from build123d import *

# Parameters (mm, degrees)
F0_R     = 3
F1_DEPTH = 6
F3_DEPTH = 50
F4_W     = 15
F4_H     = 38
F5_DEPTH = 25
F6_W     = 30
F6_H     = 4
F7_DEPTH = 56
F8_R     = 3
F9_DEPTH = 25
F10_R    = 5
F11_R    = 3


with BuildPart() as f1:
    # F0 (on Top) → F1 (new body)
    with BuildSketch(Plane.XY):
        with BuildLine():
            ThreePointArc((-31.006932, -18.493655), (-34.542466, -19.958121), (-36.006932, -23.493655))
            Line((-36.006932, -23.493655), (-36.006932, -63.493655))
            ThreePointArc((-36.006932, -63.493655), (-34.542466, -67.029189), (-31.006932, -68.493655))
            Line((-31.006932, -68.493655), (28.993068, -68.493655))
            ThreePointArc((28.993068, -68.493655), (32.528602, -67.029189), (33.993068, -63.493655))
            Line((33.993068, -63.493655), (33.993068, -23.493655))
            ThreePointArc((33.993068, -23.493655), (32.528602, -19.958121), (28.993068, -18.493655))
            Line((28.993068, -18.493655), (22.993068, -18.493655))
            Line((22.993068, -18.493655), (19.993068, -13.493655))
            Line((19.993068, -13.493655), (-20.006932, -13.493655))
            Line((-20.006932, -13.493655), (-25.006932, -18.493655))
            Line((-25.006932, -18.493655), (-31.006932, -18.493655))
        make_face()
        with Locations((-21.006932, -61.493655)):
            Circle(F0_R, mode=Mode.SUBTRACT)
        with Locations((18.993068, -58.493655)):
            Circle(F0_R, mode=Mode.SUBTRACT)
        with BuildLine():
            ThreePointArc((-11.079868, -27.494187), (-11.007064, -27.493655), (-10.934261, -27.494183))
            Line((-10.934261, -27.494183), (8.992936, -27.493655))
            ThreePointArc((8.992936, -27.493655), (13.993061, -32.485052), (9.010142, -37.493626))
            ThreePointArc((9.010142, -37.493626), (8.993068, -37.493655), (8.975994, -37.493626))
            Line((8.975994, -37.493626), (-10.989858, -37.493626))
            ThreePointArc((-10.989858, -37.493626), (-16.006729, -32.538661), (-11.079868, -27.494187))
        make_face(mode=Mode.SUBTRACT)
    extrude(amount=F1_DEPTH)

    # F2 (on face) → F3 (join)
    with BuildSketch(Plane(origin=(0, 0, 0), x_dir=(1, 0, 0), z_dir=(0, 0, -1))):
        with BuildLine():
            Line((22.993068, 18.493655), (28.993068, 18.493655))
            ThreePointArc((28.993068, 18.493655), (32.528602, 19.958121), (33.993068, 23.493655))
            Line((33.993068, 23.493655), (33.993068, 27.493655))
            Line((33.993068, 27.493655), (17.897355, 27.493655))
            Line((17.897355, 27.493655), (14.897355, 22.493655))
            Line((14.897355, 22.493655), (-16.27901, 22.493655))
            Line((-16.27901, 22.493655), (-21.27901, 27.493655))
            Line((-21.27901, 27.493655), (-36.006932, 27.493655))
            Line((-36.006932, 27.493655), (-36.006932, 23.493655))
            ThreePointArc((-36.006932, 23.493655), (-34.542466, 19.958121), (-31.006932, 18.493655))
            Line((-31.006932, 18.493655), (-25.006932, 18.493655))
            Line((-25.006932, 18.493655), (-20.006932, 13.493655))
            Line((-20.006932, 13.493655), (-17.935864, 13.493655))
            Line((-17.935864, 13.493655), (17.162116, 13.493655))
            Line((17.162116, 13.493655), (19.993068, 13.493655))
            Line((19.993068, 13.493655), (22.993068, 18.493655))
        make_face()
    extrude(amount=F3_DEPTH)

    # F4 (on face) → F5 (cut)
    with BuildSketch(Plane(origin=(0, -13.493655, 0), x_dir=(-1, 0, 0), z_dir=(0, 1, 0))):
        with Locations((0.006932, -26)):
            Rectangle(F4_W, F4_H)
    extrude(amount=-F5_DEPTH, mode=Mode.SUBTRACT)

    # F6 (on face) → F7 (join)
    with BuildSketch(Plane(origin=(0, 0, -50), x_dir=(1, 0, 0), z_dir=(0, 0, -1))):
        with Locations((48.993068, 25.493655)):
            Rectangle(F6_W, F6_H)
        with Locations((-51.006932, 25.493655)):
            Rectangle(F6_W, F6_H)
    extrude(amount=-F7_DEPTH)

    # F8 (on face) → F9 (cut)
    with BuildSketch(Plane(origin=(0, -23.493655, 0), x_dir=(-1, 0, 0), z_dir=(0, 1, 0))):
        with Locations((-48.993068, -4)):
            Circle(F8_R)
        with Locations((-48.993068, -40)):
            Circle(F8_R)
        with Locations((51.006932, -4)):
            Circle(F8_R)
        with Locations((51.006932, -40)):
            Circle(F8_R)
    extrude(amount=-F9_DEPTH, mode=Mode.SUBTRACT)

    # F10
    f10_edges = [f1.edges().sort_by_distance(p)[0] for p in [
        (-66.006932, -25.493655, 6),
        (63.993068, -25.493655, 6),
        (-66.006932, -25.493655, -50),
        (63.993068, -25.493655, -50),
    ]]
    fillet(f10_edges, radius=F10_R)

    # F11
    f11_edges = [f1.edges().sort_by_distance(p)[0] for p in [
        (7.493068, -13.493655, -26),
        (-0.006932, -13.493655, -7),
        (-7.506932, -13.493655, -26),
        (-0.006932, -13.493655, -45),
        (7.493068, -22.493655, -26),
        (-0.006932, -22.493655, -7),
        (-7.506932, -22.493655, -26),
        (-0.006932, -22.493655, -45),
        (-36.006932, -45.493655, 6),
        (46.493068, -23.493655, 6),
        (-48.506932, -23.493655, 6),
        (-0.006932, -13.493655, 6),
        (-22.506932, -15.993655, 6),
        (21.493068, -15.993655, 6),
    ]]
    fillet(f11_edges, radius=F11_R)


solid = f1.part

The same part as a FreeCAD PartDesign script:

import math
import FreeCAD as App
import Part
import Sketcher
from FreeCAD import Vector
Q = App.Units.Quantity


def edges_at(feature, points):
    """Names of the edges that pass closest to the given points."""
    edges = feature.Shape.Edges
    near = lambda p: min(range(len(edges)), key=lambda i: edges[i].distToShape(Part.Vertex(*p))[0])
    return sorted({f"Edge{near(p) + 1}" for p in points})

doc = App.newDocument("Part")
body = doc.addObject("PartDesign::Body", "Body")

# Sketch on XY plane
sketch1 = doc.addObject("Sketcher::SketchObject", "Sketch")
body.addObject(sketch1)
sketch1.AttachmentSupport = (doc.XY_Plane, [""])
sketch1.MapMode = "FlatFace"
sketch1.addGeometry(Part.ArcOfCircle(Part.Circle(Vector(-31.006932, -23.493655, 0), Vector(0, 0, 1), 5), math.radians(89.999996), math.radians(180.000004)), False)
sketch1.addGeometry(Part.LineSegment(Vector(-36.006932, -23.493655, 0), Vector(-36.006932, -63.493655, 0)), False)
sketch1.addGeometry(Part.ArcOfCircle(Part.Circle(Vector(-31.006932, -63.493655, 0), Vector(0, 0, 1), 5), math.radians(179.999996), math.radians(270.000004)), False)
sketch1.addGeometry(Part.LineSegment(Vector(-31.006932, -68.493655, 0), Vector(28.993068, -68.493655, 0)), False)
sketch1.addGeometry(Part.ArcOfCircle(Part.Circle(Vector(28.993068, -63.493655, 0), Vector(0, 0, 1), 5), math.radians(-90.000004), math.radians(0.000004)), False)
sketch1.addGeometry(Part.LineSegment(Vector(33.993068, -63.493655, 0), Vector(33.993068, -23.493655, 0)), False)
sketch1.addGeometry(Part.ArcOfCircle(Part.Circle(Vector(28.993068, -23.493655, 0), Vector(0, 0, 1), 5), math.radians(-0.000004), math.radians(90.000004)), False)
sketch1.addGeometry(Part.LineSegment(Vector(28.993068, -18.493655, 0), Vector(22.993068, -18.493655, 0)), False)
sketch1.addGeometry(Part.LineSegment(Vector(22.993068, -18.493655, 0), Vector(19.993068, -13.493655, 0)), False)
sketch1.addGeometry(Part.LineSegment(Vector(19.993068, -13.493655, 0), Vector(-20.006932, -13.493655, 0)), False)
sketch1.addGeometry(Part.LineSegment(Vector(-20.006932, -13.493655, 0), Vector(-25.006932, -18.493655, 0)), False)
sketch1.addGeometry(Part.LineSegment(Vector(-25.006932, -18.493655, 0), Vector(-31.006932, -18.493655, 0)), False)
sketch1.addGeometry(Part.Circle(Vector(-21.006932, -61.493655, 0), Vector(0, 0, 1), 3), False)
sketch1.addGeometry(Part.Circle(Vector(18.993068, -58.493655, 0), Vector(0, 0, 1), 3), False)
sketch1.addGeometry(Part.ArcOfCircle(Part.Circle(Vector(-11.006931, -32.493655, 0), Vector(0, 0, 1), 5), math.radians(90.835821), math.radians(270.195648)), False)
sketch1.addGeometry(Part.ArcOfCircle(Part.Circle(Vector(-11.006927, -32.49425, 0), Vector(0, 0, 1), 5.000595), math.radians(89.167377), math.radians(90.835771)), False)
sketch1.addGeometry(Part.LineSegment(Vector(-10.934261, -27.494183, 0), Vector(8.992936, -27.493655, 0)), False)
sketch1.addGeometry(Part.ArcOfCircle(Part.Circle(Vector(8.993068, -32.493655, 0), Vector(0, 0, 1), 5), math.radians(-89.80435), math.radians(90.001516)), False)
sketch1.addGeometry(Part.ArcOfCircle(Part.Circle(Vector(8.993068, -32.467408, 0), Vector(0, 0, 1), 5.026247), math.radians(-90.194632), math.radians(-89.805368)), False)
sketch1.addGeometry(Part.LineSegment(Vector(8.975994, -37.493626, 0), Vector(-10.989858, -37.493626, 0)), False)
sketch1.addConstraint(Sketcher.Constraint("Tangent", 0, 2, 1, 1))
sketch1.addConstraint(Sketcher.Constraint("Tangent", 1, 2, 2, 1))
sketch1.addConstraint(Sketcher.Constraint("Tangent", 2, 2, 3, 1))
sketch1.addConstraint(Sketcher.Constraint("Tangent", 3, 2, 4, 1))
sketch1.addConstraint(Sketcher.Constraint("Tangent", 4, 2, 5, 1))
sketch1.addConstraint(Sketcher.Constraint("Tangent", 5, 2, 6, 1))
sketch1.addConstraint(Sketcher.Constraint("Tangent", 6, 2, 7, 1))
sketch1.addConstraint(Sketcher.Constraint("Coincident", 7, 2, 8, 1))
sketch1.addConstraint(Sketcher.Constraint("Coincident", 8, 2, 9, 1))
sketch1.addConstraint(Sketcher.Constraint("Coincident", 9, 2, 10, 1))
sketch1.addConstraint(Sketcher.Constraint("Coincident", 10, 2, 11, 1))
sketch1.addConstraint(Sketcher.Constraint("Tangent", 11, 2, 0, 1))
sketch1.addConstraint(Sketcher.Constraint("Tangent", 14, 1, 15, 2))
sketch1.addConstraint(Sketcher.Constraint("Coincident", 15, 1, 16, 1))
sketch1.addConstraint(Sketcher.Constraint("Tangent", 16, 2, 17, 2))
sketch1.addConstraint(Sketcher.Constraint("Coincident", 17, 1, 18, 2))
sketch1.addConstraint(Sketcher.Constraint("Coincident", 18, 1, 19, 1))
sketch1.addConstraint(Sketcher.Constraint("Coincident", 19, 2, 14, 2))
sketch1.addConstraint(Sketcher.Constraint("Vertical", 1))
sketch1.addConstraint(Sketcher.Constraint("Horizontal", 3))
sketch1.addConstraint(Sketcher.Constraint("Vertical", 5))
sketch1.addConstraint(Sketcher.Constraint("Horizontal", 7))
sketch1.addConstraint(Sketcher.Constraint("Horizontal", 9))
sketch1.addConstraint(Sketcher.Constraint("Horizontal", 11))
sketch1.addConstraint(Sketcher.Constraint("Horizontal", 19))
sketch1.addConstraint(Sketcher.Constraint("Equal", 0, 2))
sketch1.addConstraint(Sketcher.Constraint("Equal", 2, 4))
sketch1.addConstraint(Sketcher.Constraint("Equal", 4, 6))
sketch1.addConstraint(Sketcher.Constraint("Equal", 12, 13))
sketch1.addConstraint(Sketcher.Constraint("Equal", 6, 14))
sketch1.addConstraint(Sketcher.Constraint("Equal", 14, 17))
sketch1.addConstraint(Sketcher.Constraint("Horizontal", 0, 3, 6, 3))
sketch1.addConstraint(Sketcher.Constraint("Horizontal", 14, 3, 17, 3))
sketch1.addConstraint(Sketcher.Constraint("Horizontal", 17, 1, 18, 1))
sketch1.addConstraint(Sketcher.Constraint("Vertical", 17, 3, 18, 3))
sketch1.addConstraint(Sketcher.Constraint("Equal", 7, 11))
sketch1.addConstraint(Sketcher.Constraint("Equal", 9, 1))
sketch1.addConstraint(Sketcher.Constraint("Diameter", 12, 6.0))
sketch1.addConstraint(Sketcher.Constraint("Radius", 0, 5.0))
sketch1.addConstraint(Sketcher.Constraint("DistanceX", 3, 1, 3, 2, 60.0))
sketch1.addConstraint(Sketcher.Constraint("DistanceX", 7, 2, 7, 1, 6.0))
sketch1.addConstraint(Sketcher.Constraint("DistanceX", 9, 2, 9, 1, 40.0))
sketch1.addConstraint(Sketcher.Constraint("Angle", 10, Q("-135 deg")))
sketch1.addConstraint(Sketcher.Constraint("DistanceX", 2, 3, 12, 3, 10.0))
sketch1.addConstraint(Sketcher.Constraint("DistanceY", 2, 3, 12, 3, 2.0))
sketch1.addConstraint(Sketcher.Constraint("DistanceX", 13, 3, 4, 3, 10.0))
sketch1.addConstraint(Sketcher.Constraint("DistanceY", 4, 3, 13, 3, 5.0))
sketch1.addConstraint(Sketcher.Constraint("DistanceX", 0, 3, 14, 3, 20.000001))
sketch1.addConstraint(Sketcher.Constraint("DistanceY", 14, 3, 0, 3, 9.0))
sketch1.addConstraint(Sketcher.Constraint("DistanceX", 14, 3, 17, 3, 20.0))
sketch1.addConstraint(Sketcher.Constraint("DistanceX", 8, 2, 7, 2, 3.0))
sketch1.addConstraint(Sketcher.Constraint("Radius", 15, 5.000595))
sketch1.addConstraint(Sketcher.Constraint("Radius", 18, 5.026247))
sketch1.addConstraint(Sketcher.Constraint("DistanceX", 19, 2, 19, 1, 19.965852))
sketch1.addConstraint(Sketcher.Constraint("DistanceX", -1, 1, 4, 3, 28.993068))
sketch1.addConstraint(Sketcher.Constraint("DistanceY", 15, 3, -1, 1, 32.49425))
sketch1.addConstraint(Sketcher.Constraint("DistanceX", 14, 1, -1, 1, 11.079868))
sketch1.addConstraint(Sketcher.Constraint("DistanceX", 15, 1, -1, 1, 10.934261))
pad1 = doc.addObject("PartDesign::Pad", "Pad")
body.addObject(pad1)
pad1.Profile = sketch1
pad1.Length = 6

# Sketch on XY plane
sketch2 = doc.addObject("Sketcher::SketchObject", "Sketch001")
body.addObject(sketch2)
sketch2.AttachmentSupport = (doc.XY_Plane, [""])
sketch2.MapMode = "FlatFace"
sketch2.addGeometry(Part.LineSegment(Vector(23, -18.5, 0), Vector(29, -18.5, 0)), False)
sketch2.addGeometry(Part.ArcOfCircle(Part.Circle(Vector(29, -23.5, 0), Vector(0, 0, 1), 5), math.radians(0), math.radians(90)), False)
sketch2.addGeometry(Part.LineSegment(Vector(34, -23.5, 0), Vector(34, -27.5, 0)), False)
sketch2.addGeometry(Part.LineSegment(Vector(34, -27.5, 0), Vector(17.9, -27.5, 0)), False)
sketch2.addGeometry(Part.LineSegment(Vector(17.9, -27.5, 0), Vector(14.9, -22.5, 0)), False)
sketch2.addGeometry(Part.LineSegment(Vector(14.9, -22.5, 0), Vector(-16.3, -22.5, 0)), False)
sketch2.addGeometry(Part.LineSegment(Vector(-16.3, -22.5, 0), Vector(-21.3, -27.5, 0)), False)
sketch2.addGeometry(Part.LineSegment(Vector(-21.3, -27.5, 0), Vector(-36, -27.5, 0)), False)
sketch2.addGeometry(Part.LineSegment(Vector(-36, -27.5, 0), Vector(-36, -23.5, 0)), False)
sketch2.addGeometry(Part.ArcOfCircle(Part.Circle(Vector(-31, -23.5, 0), Vector(0, 0, 1), 5), math.radians(90), math.radians(180)), False)
sketch2.addGeometry(Part.LineSegment(Vector(-31, -18.5, 0), Vector(-25, -18.5, 0)), False)
sketch2.addGeometry(Part.LineSegment(Vector(-25, -18.5, 0), Vector(-20, -13.5, 0)), False)
sketch2.addGeometry(Part.LineSegment(Vector(-20, -13.5, 0), Vector(20, -13.5, 0)), False)
sketch2.addGeometry(Part.LineSegment(Vector(20, -13.5, 0), Vector(23, -18.5, 0)), False)
sketch2.addConstraint(Sketcher.Constraint("Tangent", 0, 2, 1, 2))
sketch2.addConstraint(Sketcher.Constraint("Tangent", 1, 1, 2, 1))
sketch2.addConstraint(Sketcher.Constraint("Coincident", 2, 2, 3, 1))
sketch2.addConstraint(Sketcher.Constraint("Coincident", 3, 2, 4, 1))
sketch2.addConstraint(Sketcher.Constraint("Coincident", 4, 2, 5, 1))
sketch2.addConstraint(Sketcher.Constraint("Coincident", 5, 2, 6, 1))
sketch2.addConstraint(Sketcher.Constraint("Coincident", 6, 2, 7, 1))
sketch2.addConstraint(Sketcher.Constraint("Coincident", 7, 2, 8, 1))
sketch2.addConstraint(Sketcher.Constraint("Tangent", 8, 2, 9, 2))
sketch2.addConstraint(Sketcher.Constraint("Tangent", 9, 1, 10, 1))
sketch2.addConstraint(Sketcher.Constraint("Coincident", 10, 2, 11, 1))
sketch2.addConstraint(Sketcher.Constraint("Coincident", 11, 2, 12, 1))
sketch2.addConstraint(Sketcher.Constraint("Coincident", 12, 2, 13, 1))
sketch2.addConstraint(Sketcher.Constraint("Coincident", 13, 2, 0, 1))
sketch2.addConstraint(Sketcher.Constraint("Horizontal", 0))
sketch2.addConstraint(Sketcher.Constraint("Vertical", 2))
sketch2.addConstraint(Sketcher.Constraint("Horizontal", 3))
sketch2.addConstraint(Sketcher.Constraint("Horizontal", 5))
sketch2.addConstraint(Sketcher.Constraint("Horizontal", 7))
sketch2.addConstraint(Sketcher.Constraint("Vertical", 8))
sketch2.addConstraint(Sketcher.Constraint("Horizontal", 10))
sketch2.addConstraint(Sketcher.Constraint("Horizontal", 12))
sketch2.addConstraint(Sketcher.Constraint("Equal", 1, 9))
sketch2.addConstraint(Sketcher.Constraint("Parallel", 6, 11))
sketch2.addConstraint(Sketcher.Constraint("Parallel", 4, 13))
sketch2.addConstraint(Sketcher.Constraint("Horizontal", 1, 3, 9, 3))
sketch2.addConstraint(Sketcher.Constraint("Horizontal", 3, 2, 6, 2))
sketch2.addConstraint(Sketcher.Constraint("Equal", 0, 10))
sketch2.addConstraint(Sketcher.Constraint("Equal", 6, 11))
sketch2.addConstraint(Sketcher.Constraint("Radius", 1, 5.0))
sketch2.addConstraint(Sketcher.Constraint("DistanceX", 0, 1, 0, 2, 6.0))
sketch2.addConstraint(Sketcher.Constraint("DistanceX", 12, 1, 12, 2, 40.0))
sketch2.addConstraint(Sketcher.Constraint("DistanceY", 2, 2, 2, 1, 4.0))
sketch2.addConstraint(Sketcher.Constraint("Angle", 6, Q("-135 deg")))
sketch2.addConstraint(Sketcher.Constraint("DistanceX", 9, 3, 1, 3, 60.000001))
sketch2.addConstraint(Sketcher.Constraint("DistanceX", 4, 2, 3, 2, 3.0))
sketch2.addConstraint(Sketcher.Constraint("DistanceX", 3, 2, 3, 1, 16.095713))
sketch2.addConstraint(Sketcher.Constraint("DistanceX", 5, 2, 5, 1, 31.176365))
sketch2.addConstraint(Sketcher.Constraint("DistanceX", -1, 1, 1, 3, 28.993068))
sketch2.addConstraint(Sketcher.Constraint("DistanceY", 1, 3, -1, 1, 23.493655))
pad2 = doc.addObject("PartDesign::Pad", "Pad001")
body.addObject(pad2)
pad2.Profile = sketch2
pad2.Length = 50
pad2.Reversed = True

# Sketch on XZ plane
sketch3 = doc.addObject("Sketcher::SketchObject", "Sketch002")
body.addObject(sketch3)
sketch3.AttachmentSupport = (doc.XZ_Plane, [""])
sketch3.MapMode = "FlatFace"
sketch3.AttachmentOffset = App.Placement(Vector(0, 0, 13.493655), App.Rotation())
sketch3.addGeometry(Part.LineSegment(Vector(7, -7, 0), Vector(7, -45, 0)), False)
sketch3.addGeometry(Part.LineSegment(Vector(7, -45, 0), Vector(-8, -45, 0)), False)
sketch3.addGeometry(Part.LineSegment(Vector(-8, -45, 0), Vector(-8, -7, 0)), False)
sketch3.addGeometry(Part.LineSegment(Vector(-8, -7, 0), Vector(7, -7, 0)), False)
sketch3.addConstraint(Sketcher.Constraint("Coincident", 0, 2, 1, 1))
sketch3.addConstraint(Sketcher.Constraint("Coincident", 1, 2, 2, 1))
sketch3.addConstraint(Sketcher.Constraint("Coincident", 2, 2, 3, 1))
sketch3.addConstraint(Sketcher.Constraint("Coincident", 3, 2, 0, 1))
sketch3.addConstraint(Sketcher.Constraint("Vertical", 0))
sketch3.addConstraint(Sketcher.Constraint("Horizontal", 1))
sketch3.addConstraint(Sketcher.Constraint("Vertical", 2))
sketch3.addConstraint(Sketcher.Constraint("Horizontal", 3))
sketch3.addConstraint(Sketcher.Constraint("DistanceX", 1, 2, 1, 1, 15.0))
sketch3.addConstraint(Sketcher.Constraint("DistanceY", 0, 2, 0, 1, 38.0))
sketch3.addConstraint(Sketcher.Constraint("DistanceY", 0, 2, -1, 1, 45.0))
sketch3.addConstraint(Sketcher.Constraint("DistanceX", -1, 1, 0, 2, 7.493068))
pocket1 = doc.addObject("PartDesign::Pocket", "Pocket")
body.addObject(pocket1)
pocket1.Profile = sketch3
pocket1.Length = 25
pocket1.Reversed = True

# Sketch on XY plane
sketch4 = doc.addObject("Sketcher::SketchObject", "Sketch003")
body.addObject(sketch4)
sketch4.AttachmentSupport = (doc.XY_Plane, [""])
sketch4.MapMode = "FlatFace"
sketch4.AttachmentOffset = App.Placement(Vector(0, 0, -50), App.Rotation())
sketch4.addGeometry(Part.LineSegment(Vector(34, -27.5, 0), Vector(34, -23.5, 0)), False)
sketch4.addGeometry(Part.LineSegment(Vector(34, -23.5, 0), Vector(64, -23.5, 0)), False)
sketch4.addGeometry(Part.LineSegment(Vector(64, -23.5, 0), Vector(64, -27.5, 0)), False)
sketch4.addGeometry(Part.LineSegment(Vector(64, -27.5, 0), Vector(34, -27.5, 0)), False)
sketch4.addGeometry(Part.LineSegment(Vector(-66, -27.5, 0), Vector(-66, -23.5, 0)), False)
sketch4.addGeometry(Part.LineSegment(Vector(-66, -23.5, 0), Vector(-36, -23.5, 0)), False)
sketch4.addGeometry(Part.LineSegment(Vector(-36, -23.5, 0), Vector(-36, -27.5, 0)), False)
sketch4.addGeometry(Part.LineSegment(Vector(-36, -27.5, 0), Vector(-66, -27.5, 0)), False)
sketch4.addConstraint(Sketcher.Constraint("Coincident", 0, 2, 1, 1))
sketch4.addConstraint(Sketcher.Constraint("Coincident", 1, 2, 2, 1))
sketch4.addConstraint(Sketcher.Constraint("Coincident", 2, 2, 3, 1))
sketch4.addConstraint(Sketcher.Constraint("Coincident", 3, 2, 0, 1))
sketch4.addConstraint(Sketcher.Constraint("Coincident", 4, 2, 5, 1))
sketch4.addConstraint(Sketcher.Constraint("Coincident", 5, 2, 6, 1))
sketch4.addConstraint(Sketcher.Constraint("Coincident", 6, 2, 7, 1))
sketch4.addConstraint(Sketcher.Constraint("Coincident", 7, 2, 4, 1))
sketch4.addConstraint(Sketcher.Constraint("Vertical", 0))
sketch4.addConstraint(Sketcher.Constraint("Horizontal", 1))
sketch4.addConstraint(Sketcher.Constraint("Vertical", 2))
sketch4.addConstraint(Sketcher.Constraint("Horizontal", 3))
sketch4.addConstraint(Sketcher.Constraint("Vertical", 4))
sketch4.addConstraint(Sketcher.Constraint("Horizontal", 5))
sketch4.addConstraint(Sketcher.Constraint("Vertical", 6))
sketch4.addConstraint(Sketcher.Constraint("Horizontal", 7))
sketch4.addConstraint(Sketcher.Constraint("Horizontal", 1, 2, 4, 2))
sketch4.addConstraint(Sketcher.Constraint("Horizontal", 3, 2, 6, 2))
sketch4.addConstraint(Sketcher.Constraint("Equal", 3, 5))
sketch4.addConstraint(Sketcher.Constraint("DistanceX", 1, 1, 1, 2, 30.0))
sketch4.addConstraint(Sketcher.Constraint("DistanceY", 0, 1, 0, 2, 4.0))
sketch4.addConstraint(Sketcher.Constraint("DistanceX", 4, 2, 0, 2, 100.0))
sketch4.addConstraint(Sketcher.Constraint("DistanceX", -1, 1, 0, 2, 33.993068))
sketch4.addConstraint(Sketcher.Constraint("DistanceY", 0, 2, -1, 1, 23.493655))
pad3 = doc.addObject("PartDesign::Pad", "Pad002")
body.addObject(pad3)
pad3.Profile = sketch4
pad3.Length = 56

# Sketch on XZ plane
sketch5 = doc.addObject("Sketcher::SketchObject", "Sketch004")
body.addObject(sketch5)
sketch5.AttachmentSupport = (doc.XZ_Plane, [""])
sketch5.MapMode = "FlatFace"
sketch5.AttachmentOffset = App.Placement(Vector(0, 0, 23.493655), App.Rotation())
sketch5.addGeometry(Part.Circle(Vector(49, -4, 0), Vector(0, 0, 1), 3), False)
sketch5.addGeometry(Part.Circle(Vector(49, -40, 0), Vector(0, 0, 1), 3), False)
sketch5.addGeometry(Part.Circle(Vector(-51, -4, 0), Vector(0, 0, 1), 3), False)
sketch5.addGeometry(Part.Circle(Vector(-51, -40, 0), Vector(0, 0, 1), 3), False)
sketch5.addConstraint(Sketcher.Constraint("Equal", 0, 1))
sketch5.addConstraint(Sketcher.Constraint("Equal", 1, 2))
sketch5.addConstraint(Sketcher.Constraint("Equal", 2, 3))
sketch5.addConstraint(Sketcher.Constraint("Horizontal", 0, 3, 2, 3))
sketch5.addConstraint(Sketcher.Constraint("Horizontal", 1, 3, 3, 3))
sketch5.addConstraint(Sketcher.Constraint("Vertical", 0, 3, 1, 3))
sketch5.addConstraint(Sketcher.Constraint("Vertical", 2, 3, 3, 3))
sketch5.addConstraint(Sketcher.Constraint("Diameter", 0, 6.0))
sketch5.addConstraint(Sketcher.Constraint("DistanceY", 0, 3, -1, 1, 4.0))
sketch5.addConstraint(Sketcher.Constraint("DistanceY", 1, 3, -1, 1, 40.0))
sketch5.addConstraint(Sketcher.Constraint("DistanceX", 2, 3, 0, 3, 100.0))
sketch5.addConstraint(Sketcher.Constraint("DistanceX", -1, 1, 0, 3, 48.993068))
pocket2 = doc.addObject("PartDesign::Pocket", "Pocket001")
body.addObject(pocket2)
pocket2.Profile = sketch5
pocket2.Length = 25
pocket2.Reversed = True
doc.recompute()

fillet = doc.addObject("PartDesign::Fillet", "Fillet")
body.addObject(fillet)
fillet.Base = (pocket2, edges_at(pocket2, [
    (-66.007, -25.494, 6),
    (63.993, -25.494, 6),
    (-66.007, -25.494, -50),
    (63.993, -25.494, -50),
]))
fillet.Radius = 5
doc.recompute()

fillet2 = doc.addObject("PartDesign::Fillet", "Fillet001")
body.addObject(fillet2)
fillet2.Base = (fillet, edges_at(fillet, [
    (7.493, -13.494, -26),
    (-0.007, -13.494, -7),
    (-7.507, -13.494, -26),
    (-0.007, -13.494, -45),
    (7.493, -22.494, -26),
    (-0.007, -22.494, -7),
    (-7.507, -22.494, -26),
    (-0.007, -22.494, -45),
    (-36.007, -45.494, 6),
    (46.493, -23.494, 6),
    (-48.507, -23.494, 6),
    (-0.007, -13.494, 6),
    (-22.507, -15.994, 6),
    (21.493, -15.994, 6),
]))
fillet2.Radius = 3

doc.recompute()
